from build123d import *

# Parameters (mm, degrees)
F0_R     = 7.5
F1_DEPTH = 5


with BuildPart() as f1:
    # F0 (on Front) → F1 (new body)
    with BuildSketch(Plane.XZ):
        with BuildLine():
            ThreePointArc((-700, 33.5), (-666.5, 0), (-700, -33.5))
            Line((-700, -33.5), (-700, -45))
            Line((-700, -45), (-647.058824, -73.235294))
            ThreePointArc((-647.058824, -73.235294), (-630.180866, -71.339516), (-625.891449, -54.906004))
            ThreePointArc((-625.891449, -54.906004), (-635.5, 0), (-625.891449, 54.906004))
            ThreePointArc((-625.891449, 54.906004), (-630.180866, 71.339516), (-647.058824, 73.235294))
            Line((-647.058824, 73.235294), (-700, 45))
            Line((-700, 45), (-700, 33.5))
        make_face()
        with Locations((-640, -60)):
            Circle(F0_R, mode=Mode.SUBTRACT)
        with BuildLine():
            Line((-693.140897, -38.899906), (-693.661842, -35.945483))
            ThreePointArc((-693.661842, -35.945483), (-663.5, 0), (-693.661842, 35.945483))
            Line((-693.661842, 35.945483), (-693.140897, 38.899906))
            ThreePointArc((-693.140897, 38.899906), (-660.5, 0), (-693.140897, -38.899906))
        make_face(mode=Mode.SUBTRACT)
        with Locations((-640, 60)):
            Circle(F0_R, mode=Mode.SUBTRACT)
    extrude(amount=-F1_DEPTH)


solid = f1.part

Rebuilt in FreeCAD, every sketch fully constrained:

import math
import FreeCAD as App
import Part
import Sketcher

V = App.Vector
Q = App.Units.Quantity

doc = App.newDocument("Part")
body = doc.addObject("PartDesign::Body", "Body")

# Sketch on XZ plane
sketch1 = body.newObject("Sketcher::SketchObject", "Sketch")
sketch1.AttachmentSupport = (doc.getObject("XZ_Plane"), [""])
sketch1.MapMode = "FlatFace"
sketch1.addGeometry([
    Part.ArcOfCircle(Part.Circle(V(-700, 0, 0), V(0, 0, 1), 33.5), math.radians(-90), math.radians(90)),  # 0
    Part.LineSegment(V(-700, -33.5, 0), V(-700, -45, 0)),  # 1
    Part.LineSegment(V(-700, -45, 0), V(-647.1, -73.2, 0)),  # 2
    Part.ArcOfCircle(Part.Circle(V(-640, -60, 0), V(0, 0, 1), 15), math.radians(-118), math.radians(20)),  # 3
    Part.ArcOfCircle(Part.Circle(V(-473.8, 0, 0), V(0, 0, 1), 161.7), math.radians(160), math.radians(200)),  # 4
    Part.ArcOfCircle(Part.Circle(V(-640, 60, 0), V(0, 0, 1), 15), math.radians(-20), math.radians(118)),  # 5
    Part.LineSegment(V(-647.1, 73.2, 0), V(-700, 45, 0)),  # 6
    Part.LineSegment(V(-700, 45, 0), V(-700, 33.5, 0)),  # 7
    Part.Circle(V(-640, -60, 0), V(0, 0, 1), 7.5),  # 8
    Part.ArcOfCircle(Part.Circle(V(-700, 0, 0), V(0, 0, 1), 39.5), math.radians(-80), math.radians(80)),  # 9
    Part.LineSegment(V(-693.1, -38.9, 0), V(-693.7, -35.9, 0)),  # 10
    Part.ArcOfCircle(Part.Circle(V(-700, 0, 0), V(0, 0, 1), 36.5), math.radians(-80), math.radians(80)),  # 11
    Part.LineSegment(V(-693.7, 35.9, 0), V(-693.1, 38.9, 0)),  # 12
    Part.Circle(V(-640, 60, 0), V(0, 0, 1), 7.5),  # 13
], False)
sketch1.addConstraint([
    Sketcher.Constraint("Coincident", 0, 1, 1, 1),
    Sketcher.Constraint("Coincident", 1, 2, 2, 1),
    Sketcher.Constraint("Tangent", 2, 2, 3, 1),
    Sketcher.Constraint("Tangent", 3, 2, 4, 2),
    Sketcher.Constraint("Tangent", 4, 1, 5, 1),
    Sketcher.Constraint("Tangent", 5, 2, 6, 1),
    Sketcher.Constraint("Coincident", 6, 2, 7, 1),
    Sketcher.Constraint("Coincident", 7, 2, 0, 2),
    Sketcher.Constraint("Coincident", 9, 1, 10, 1),
    Sketcher.Constraint("Coincident", 10, 2, 11, 1),
    Sketcher.Constraint("Coincident", 11, 2, 12, 1),
    Sketcher.Constraint("Coincident", 12, 2, 9, 2),
    Sketcher.Constraint("Vertical", 1),
    Sketcher.Constraint("Vertical", 7),
    Sketcher.Constraint("Coincident", 8, 3, 3, 3),
    Sketcher.Constraint("Coincident", 9, 3, 0, 3),
    Sketcher.Constraint("Coincident", 11, 3, 0, 3),
    Sketcher.Constraint("Coincident", 13, 3, 5, 3),
    Sketcher.Constraint("Equal", 3, 5),
    Sketcher.Constraint("Equal", 8, 13),
    Sketcher.Constraint("Symmetric", 3, 3, 5, 3, -1),
    Sketcher.Constraint("Symmetric", 1, 2, 6, 2, -1),
    Sketcher.Constraint("Symmetric", 10, 2, 11, 2, -1),
    Sketcher.Constraint("Vertical", 11, 3, 0, 1),
    Sketcher.Constraint("Vertical", 9, 1, 12, 2),
    Sketcher.Constraint("Diameter", 8, Q("15 mm")),
    Sketcher.Constraint("Radius", 3, Q("15 mm")),
    Sketcher.Constraint("Radius", 0, Q("33.5 mm")),
    Sketcher.Constraint("Radius", 9, Q("39.5 mm")),
    Sketcher.Constraint("Radius", 11, Q("36.5 mm")),
    Sketcher.Constraint("Angle", 10, Q("100.00001 deg")),
    Sketcher.Constraint("Distance", 2, Q("60 mm")),
    Sketcher.Constraint("DistanceY", 1, 2, 1, 1, Q("11.5 mm")),
    Sketcher.Constraint("DistanceX", 0, 3, -1, 1, Q("700 mm")),
    Sketcher.Constraint("DistanceX", 3, 3, -1, 1, Q("640 mm")),
    Sketcher.Constraint("Radius", 4, Q("161.678568 mm")),
    Sketcher.Constraint("DistanceX", 10, 2, -1, 1, Q("693.661842 mm")),
])
pad1 = body.newObject("PartDesign::Pad", "Pad")
pad1.Profile = sketch1
pad1.Length = 5
pad1.Reversed = True

doc.recompute()
